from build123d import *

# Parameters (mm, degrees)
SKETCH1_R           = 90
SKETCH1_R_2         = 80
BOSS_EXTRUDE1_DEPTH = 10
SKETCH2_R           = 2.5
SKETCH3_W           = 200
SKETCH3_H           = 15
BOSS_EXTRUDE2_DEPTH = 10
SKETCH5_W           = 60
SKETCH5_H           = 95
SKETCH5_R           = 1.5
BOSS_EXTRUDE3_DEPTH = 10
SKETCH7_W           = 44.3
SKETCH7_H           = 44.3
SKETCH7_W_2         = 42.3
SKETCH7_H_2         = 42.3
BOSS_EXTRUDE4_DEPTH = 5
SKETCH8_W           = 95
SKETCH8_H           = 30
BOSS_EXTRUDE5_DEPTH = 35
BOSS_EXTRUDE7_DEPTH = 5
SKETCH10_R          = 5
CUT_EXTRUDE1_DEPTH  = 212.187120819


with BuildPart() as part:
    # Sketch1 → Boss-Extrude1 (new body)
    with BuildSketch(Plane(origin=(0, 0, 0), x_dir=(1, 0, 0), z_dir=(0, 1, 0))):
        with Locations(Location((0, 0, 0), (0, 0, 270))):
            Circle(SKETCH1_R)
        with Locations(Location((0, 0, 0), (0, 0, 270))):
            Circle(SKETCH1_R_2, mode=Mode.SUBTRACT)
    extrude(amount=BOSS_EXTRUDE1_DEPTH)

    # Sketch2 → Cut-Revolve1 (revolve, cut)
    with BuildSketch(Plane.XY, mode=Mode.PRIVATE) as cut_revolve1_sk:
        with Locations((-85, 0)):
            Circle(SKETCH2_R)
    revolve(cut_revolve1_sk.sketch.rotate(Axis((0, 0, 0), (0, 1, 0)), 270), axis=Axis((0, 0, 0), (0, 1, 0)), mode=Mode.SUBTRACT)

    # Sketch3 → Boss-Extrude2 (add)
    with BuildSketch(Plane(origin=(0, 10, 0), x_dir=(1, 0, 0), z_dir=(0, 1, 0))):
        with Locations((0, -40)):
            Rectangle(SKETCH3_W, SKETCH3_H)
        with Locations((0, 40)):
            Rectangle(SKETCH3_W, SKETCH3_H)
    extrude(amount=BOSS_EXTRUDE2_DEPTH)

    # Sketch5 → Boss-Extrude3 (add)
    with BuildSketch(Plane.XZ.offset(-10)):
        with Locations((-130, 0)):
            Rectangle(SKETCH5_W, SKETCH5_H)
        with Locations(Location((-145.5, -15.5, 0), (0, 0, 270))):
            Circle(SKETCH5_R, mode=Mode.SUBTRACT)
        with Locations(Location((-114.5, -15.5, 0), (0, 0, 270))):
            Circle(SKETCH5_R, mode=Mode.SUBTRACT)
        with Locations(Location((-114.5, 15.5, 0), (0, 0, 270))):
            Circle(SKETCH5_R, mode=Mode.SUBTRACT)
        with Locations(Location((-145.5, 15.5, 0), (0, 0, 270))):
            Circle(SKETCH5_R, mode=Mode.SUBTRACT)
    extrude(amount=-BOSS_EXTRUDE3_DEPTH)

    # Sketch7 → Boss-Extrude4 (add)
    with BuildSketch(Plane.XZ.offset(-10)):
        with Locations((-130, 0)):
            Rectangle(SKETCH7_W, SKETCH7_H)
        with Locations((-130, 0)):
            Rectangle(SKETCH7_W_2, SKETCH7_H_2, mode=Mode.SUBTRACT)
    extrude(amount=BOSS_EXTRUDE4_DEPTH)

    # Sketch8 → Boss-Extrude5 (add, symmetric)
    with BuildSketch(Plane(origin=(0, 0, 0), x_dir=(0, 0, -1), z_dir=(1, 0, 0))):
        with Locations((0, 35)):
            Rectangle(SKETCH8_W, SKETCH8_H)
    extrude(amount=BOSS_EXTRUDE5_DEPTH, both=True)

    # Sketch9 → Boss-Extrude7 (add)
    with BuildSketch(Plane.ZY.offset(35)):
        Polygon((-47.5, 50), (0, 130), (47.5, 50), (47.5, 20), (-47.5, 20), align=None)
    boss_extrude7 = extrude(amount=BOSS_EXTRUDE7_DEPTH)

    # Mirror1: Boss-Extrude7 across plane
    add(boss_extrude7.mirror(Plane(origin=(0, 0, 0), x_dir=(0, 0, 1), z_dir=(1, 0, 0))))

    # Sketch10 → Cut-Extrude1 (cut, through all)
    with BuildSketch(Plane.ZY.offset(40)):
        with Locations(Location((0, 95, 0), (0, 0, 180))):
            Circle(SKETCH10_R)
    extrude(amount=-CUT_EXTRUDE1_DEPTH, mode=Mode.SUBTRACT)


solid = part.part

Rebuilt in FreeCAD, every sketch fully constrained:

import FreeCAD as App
import Part
import Sketcher
from FreeCAD import Vector
Q = App.Units.Quantity

doc = App.newDocument("Part")
body = doc.addObject("PartDesign::Body", "Body")

# Sketch on XZ plane
sketch1 = body.newObject("Sketcher::SketchObject", "Sketch")
sketch1.AttachmentSupport = (doc.getObject("XZ_Plane"), [""])
sketch1.MapMode = "FlatFace"
sketch1.addGeometry(Part.Circle(Vector(0, 0, 0), Vector(0, 0, 1), 90), False)
sketch1.addGeometry(Part.Circle(Vector(0, 0, 0), Vector(0, 0, 1), 80), False)
sketch1.addConstraint(Sketcher.Constraint("Coincident", 0, 3, -1, 1))
sketch1.addConstraint(Sketcher.Constraint("Coincident", 1, 3, -1, 1))
sketch1.addConstraint(Sketcher.Constraint("Diameter", 0, Q("180 mm")))
sketch1.addConstraint(Sketcher.Constraint("Diameter", 1, Q("160 mm")))
pad1 = body.newObject("PartDesign::Pad", "Pad")
pad1.Profile = sketch1
pad1.Length = 10
pad1.Reversed = True

# Sketch on XY plane
sketch2 = body.newObject("Sketcher::SketchObject", "Sketch001")
sketch2.AttachmentSupport = (doc.getObject("XY_Plane"), [""])
sketch2.MapMode = "FlatFace"
sketch2.addGeometry(Part.Circle(Vector(-85, 0, 0), Vector(0, 0, 1), 2.5), False)
sketch2.addConstraint(Sketcher.Constraint("PointOnObject", 0, 3, -1))
sketch2.addConstraint(Sketcher.Constraint("Diameter", 0, Q("5 mm")))
sketch2.addConstraint(Sketcher.Constraint("DistanceX", 0, 3, -1, 1, Q("85 mm")))
groove = body.newObject("PartDesign::Groove", "Groove")
groove.Profile = sketch2
groove.ReferenceAxis = (sketch2, ["V_Axis"])
groove.Angle = 360

# Sketch on XZ plane
sketch3 = body.newObject("Sketcher::SketchObject", "Sketch002")
sketch3.AttachmentSupport = (doc.getObject("XZ_Plane"), [""])
sketch3.MapMode = "FlatFace"
sketch3.AttachmentOffset = App.Placement(Vector(0, 0, -10), App.Rotation())
sketch3.addGeometry(Part.LineSegment(Vector(-100, 32, 0), Vector(-100, 48, 0)), False)
sketch3.addGeometry(Part.LineSegment(Vector(-100, 48, 0), Vector(100, 48, 0)), False)
sketch3.addGeometry(Part.LineSegment(Vector(100, 48, 0), Vector(100, 32, 0)), False)
sketch3.addGeometry(Part.LineSegment(Vector(100, 32, 0), Vector(-100, 32, 0)), False)
sketch3.addGeometry(Part.LineSegment(Vector(-100, -48, 0), Vector(-100, -32, 0)), False)
sketch3.addGeometry(Part.LineSegment(Vector(-100, -32, 0), Vector(100, -32, 0)), False)
sketch3.addGeometry(Part.LineSegment(Vector(100, -32, 0), Vector(100, -48, 0)), False)
sketch3.addGeometry(Part.LineSegment(Vector(100, -48, 0), Vector(-100, -48, 0)), False)
sketch3.addConstraint(Sketcher.Constraint("Coincident", 0, 2, 1, 1))
sketch3.addConstraint(Sketcher.Constraint("Coincident", 1, 2, 2, 1))
sketch3.addConstraint(Sketcher.Constraint("Coincident", 2, 2, 3, 1))
sketch3.addConstraint(Sketcher.Constraint("Coincident", 3, 2, 0, 1))
sketch3.addConstraint(Sketcher.Constraint("Coincident", 4, 2, 5, 1))
sketch3.addConstraint(Sketcher.Constraint("Coincident", 5, 2, 6, 1))
sketch3.addConstraint(Sketcher.Constraint("Coincident", 6, 2, 7, 1))
sketch3.addConstraint(Sketcher.Constraint("Coincident", 7, 2, 4, 1))
sketch3.addConstraint(Sketcher.Constraint("Vertical", 0))
sketch3.addConstraint(Sketcher.Constraint("Horizontal", 1))
sketch3.addConstraint(Sketcher.Constraint("Vertical", 2))
sketch3.addConstraint(Sketcher.Constraint("Horizontal", 3))
sketch3.addConstraint(Sketcher.Constraint("Vertical", 4))
sketch3.addConstraint(Sketcher.Constraint("Horizontal", 5))
sketch3.addConstraint(Sketcher.Constraint("Vertical", 6))
sketch3.addConstraint(Sketcher.Constraint("Horizontal", 7))
sketch3.addConstraint(Sketcher.Constraint("Symmetric", 2, 2, 4, 2, -1, 1))
sketch3.addConstraint(Sketcher.Constraint("Symmetric", 0, 2, 6, 2, -1, 1))
sketch3.addConstraint(Sketcher.Constraint("Vertical", 3, 2, 4, 2))
sketch3.addConstraint(Sketcher.Constraint("DistanceX", 1, 1, 1, 2, Q("200 mm")))
sketch3.addConstraint(Sketcher.Constraint("DistanceY", 0, 1, 0, 2, Q("15 mm")))
sketch3.addConstraint(Sketcher.Constraint("DistanceY", 4, 2, 3, 2, Q("65 mm")))
pad2 = body.newObject("PartDesign::Pad", "Pad001")
pad2.Profile = sketch3
pad2.Length = 10
pad2.Reversed = True

# Sketch on XZ plane
sketch4 = body.newObject("Sketcher::SketchObject", "Sketch003")
sketch4.AttachmentSupport = (doc.getObject("XZ_Plane"), [""])
sketch4.MapMode = "FlatFace"
sketch4.AttachmentOffset = App.Placement(Vector(0, 0, -10), App.Rotation())
sketch4.addGeometry(Part.LineSegment(Vector(-160, 47.5, 0), Vector(-160, -47.5, 0)), False)
sketch4.addGeometry(Part.LineSegment(Vector(-160, -47.5, 0), Vector(-100, -47.5, 0)), False)
sketch4.addGeometry(Part.LineSegment(Vector(-100, -47.5, 0), Vector(-100, 47.5, 0)), False)
sketch4.addGeometry(Part.LineSegment(Vector(-100, 47.5, 0), Vector(-160, 47.5, 0)), False)
sketch4.addGeometry(Part.Circle(Vector(-145.5, -15.5, 0), Vector(0, 0, 1), 1.5), False)
sketch4.addGeometry(Part.Circle(Vector(-114.5, -15.5, 0), Vector(0, 0, 1), 1.5), False)
sketch4.addGeometry(Part.Circle(Vector(-145.5, 15.5, 0), Vector(0, 0, 1), 1.5), False)
sketch4.addGeometry(Part.Circle(Vector(-114.5, 15.5, 0), Vector(0, 0, 1), 1.5), False)
sketch4.addConstraint(Sketcher.Constraint("Coincident", 0, 2, 1, 1))
sketch4.addConstraint(Sketcher.Constraint("Coincident", 1, 2, 2, 1))
sketch4.addConstraint(Sketcher.Constraint("Coincident", 2, 2, 3, 1))
sketch4.addConstraint(Sketcher.Constraint("Coincident", 3, 2, 0, 1))
sketch4.addConstraint(Sketcher.Constraint("Vertical", 0))
sketch4.addConstraint(Sketcher.Constraint("Horizontal", 1))
sketch4.addConstraint(Sketcher.Constraint("Vertical", 2))
sketch4.addConstraint(Sketcher.Constraint("Horizontal", 3))
sketch4.addConstraint(Sketcher.Constraint("Equal", 4, 5))
sketch4.addConstraint(Sketcher.Constraint("Equal", 5, 6))
sketch4.addConstraint(Sketcher.Constraint("Equal", 6, 7))
sketch4.addConstraint(Sketcher.Constraint("Symmetric", 4, 3, 6, 3, -1))
sketch4.addConstraint(Sketcher.Constraint("Symmetric", 5, 3, 7, 3, -1))
sketch4.addConstraint(Sketcher.Constraint("Horizontal", 4, 3, 5, 3))
sketch4.addConstraint(Sketcher.Constraint("Diameter", 4, Q("3 mm")))
sketch4.addConstraint(Sketcher.Constraint("DistanceX", 1, 1, 1, 2, Q("60 mm")))
sketch4.addConstraint(Sketcher.Constraint("DistanceY", 0, 2, 0, 1, Q("95 mm")))
sketch4.addConstraint(Sketcher.Constraint("DistanceX", 0, 2, -1, 1, Q("160 mm")))
sketch4.addConstraint(Sketcher.Constraint("DistanceX", 4, 3, 5, 3, Q("31 mm")))
sketch4.addConstraint(Sketcher.Constraint("DistanceY", 4, 3, 6, 3, Q("31 mm")))
sketch4.addConstraint(Sketcher.Constraint("DistanceY", 0, 2, 4, 3, Q("32 mm")))
sketch4.addConstraint(Sketcher.Constraint("DistanceX", 4, 3, -1, 1, Q("145.5 mm")))
pad3 = body.newObject("PartDesign::Pad", "Pad002")
pad3.Profile = sketch4
pad3.Length = 10
pad3.Reversed = True

# Sketch on XZ plane
sketch5 = body.newObject("Sketcher::SketchObject", "Sketch004")
sketch5.AttachmentSupport = (doc.getObject("XZ_Plane"), [""])
sketch5.MapMode = "FlatFace"
sketch5.AttachmentOffset = App.Placement(Vector(0, 0, -10), App.Rotation())
sketch5.addGeometry(Part.LineSegment(Vector(-152, 22, 0), Vector(-152, -22, 0)), False)
sketch5.addGeometry(Part.LineSegment(Vector(-152, -22, 0), Vector(-108, -22, 0)), False)
sketch5.addGeometry(Part.LineSegment(Vector(-108, -22, 0), Vector(-108, 22, 0)), False)
sketch5.addGeometry(Part.LineSegment(Vector(-108, 22, 0), Vector(-152, 22, 0)), False)
sketch5.addGeometry(Part.LineSegment(Vector(-109, -21, 0), Vector(-151, -21, 0)), False)
sketch5.addGeometry(Part.LineSegment(Vector(-151, -21, 0), Vector(-151, 21, 0)), False)
sketch5.addGeometry(Part.LineSegment(Vector(-151, 21, 0), Vector(-109, 21, 0)), False)
sketch5.addGeometry(Part.LineSegment(Vector(-109, 21, 0), Vector(-109, -21, 0)), False)
sketch5.addConstraint(Sketcher.Constraint("Coincident", 0, 2, 1, 1))
sketch5.addConstraint(Sketcher.Constraint("Coincident", 1, 2, 2, 1))
sketch5.addConstraint(Sketcher.Constraint("Coincident", 2, 2, 3, 1))
sketch5.addConstraint(Sketcher.Constraint("Coincident", 3, 2, 0, 1))
sketch5.addConstraint(Sketcher.Constraint("Coincident", 4, 2, 5, 1))
sketch5.addConstraint(Sketcher.Constraint("Coincident", 5, 2, 6, 1))
sketch5.addConstraint(Sketcher.Constraint("Coincident", 6, 2, 7, 1))
sketch5.addConstraint(Sketcher.Constraint("Coincident", 7, 2, 4, 1))
sketch5.addConstraint(Sketcher.Constraint("Vertical", 0))
sketch5.addConstraint(Sketcher.Constraint("Horizontal", 1))
sketch5.addConstraint(Sketcher.Constraint("Vertical", 2))
sketch5.addConstraint(Sketcher.Constraint("Horizontal", 3))
sketch5.addConstraint(Sketcher.Constraint("Horizontal", 4))
sketch5.addConstraint(Sketcher.Constraint("Vertical", 5))
sketch5.addConstraint(Sketcher.Constraint("Horizontal", 6))
sketch5.addConstraint(Sketcher.Constraint("Vertical", 7))
sketch5.addConstraint(Sketcher.Constraint("Equal", 3, 0))
sketch5.addConstraint(Sketcher.Constraint("Equal", 6, 5))
sketch5.addConstraint(Sketcher.Constraint("DistanceX", 1, 1, 1, 2, Q("44.3 mm")))
sketch5.addConstraint(Sketcher.Constraint("DistanceX", 4, 2, 4, 1, Q("42.3 mm")))
sketch5.addConstraint(Sketcher.Constraint("DistanceX", 0, 2, 4, 2, Q("1 mm")))
sketch5.addConstraint(Sketcher.Constraint("DistanceY", 0, 2, 4, 2, Q("1 mm")))
sketch5.addConstraint(Sketcher.Constraint("DistanceX", 0, 2, -1, 1, Q("152.15 mm")))
sketch5.addConstraint(Sketcher.Constraint("DistanceY", 0, 2, -1, 1, Q("22.15 mm")))
pad4 = body.newObject("PartDesign::Pad", "Pad003")
pad4.Profile = sketch5
pad4.Length = 5

# Sketch on YZ plane
sketch6 = body.newObject("Sketcher::SketchObject", "Sketch005")
sketch6.AttachmentSupport = (doc.getObject("YZ_Plane"), [""])
sketch6.MapMode = "FlatFace"
sketch6.addGeometry(Part.LineSegment(Vector(50, 48, 0), Vector(20, 48, 0)), False)
sketch6.addGeometry(Part.LineSegment(Vector(20, 48, 0), Vector(20, -48, 0)), False)
sketch6.addGeometry(Part.LineSegment(Vector(20, -48, 0), Vector(50, -48, 0)), False)
sketch6.addGeometry(Part.LineSegment(Vector(50, -48, 0), Vector(50, 48, 0)), False)
sketch6.addConstraint(Sketcher.Constraint("Coincident", 0, 2, 1, 1))
sketch6.addConstraint(Sketcher.Constraint("Coincident", 1, 2, 2, 1))
sketch6.addConstraint(Sketcher.Constraint("Coincident", 2, 2, 3, 1))
sketch6.addConstraint(Sketcher.Constraint("Coincident", 3, 2, 0, 1))
sketch6.addConstraint(Sketcher.Constraint("Horizontal", 0))
sketch6.addConstraint(Sketcher.Constraint("Vertical", 1))
sketch6.addConstraint(Sketcher.Constraint("Horizontal", 2))
sketch6.addConstraint(Sketcher.Constraint("Vertical", 3))
sketch6.addConstraint(Sketcher.Constraint("DistanceX", 0, 2, 0, 1, Q("30 mm")))
sketch6.addConstraint(Sketcher.Constraint("DistanceY", 1, 2, 1, 1, Q("95 mm")))
sketch6.addConstraint(Sketcher.Constraint("DistanceX", -1, 1, 0, 2, Q("20 mm")))
sketch6.addConstraint(Sketcher.Constraint("DistanceY", -1, 1, 0, 2, Q("47.5 mm")))
pad5 = body.newObject("PartDesign::Pad", "Pad004")
pad5.Profile = sketch6
pad5.Length = 70
pad5.Midplane = True

# Sketch on YZ plane
sketch7 = body.newObject("Sketcher::SketchObject", "Sketch006")
sketch7.AttachmentSupport = (doc.getObject("YZ_Plane"), [""])
sketch7.MapMode = "FlatFace"
sketch7.AttachmentOffset = App.Placement(Vector(0, 0, -35), App.Rotation())
sketch7.addGeometry(Part.LineSegment(Vector(130, 0, 0), Vector(50, -48, 0)), False)
sketch7.addGeometry(Part.LineSegment(Vector(50, -48, 0), Vector(20, -48, 0)), False)
sketch7.addGeometry(Part.LineSegment(Vector(20, -48, 0), Vector(20, 48, 0)), False)
sketch7.addGeometry(Part.LineSegment(Vector(20, 48, 0), Vector(50, 48, 0)), False)
sketch7.addGeometry(Part.LineSegment(Vector(50, 48, 0), Vector(130, 0, 0)), False)
sketch7.addConstraint(Sketcher.Constraint("Coincident", 0, 2, 1, 1))
sketch7.addConstraint(Sketcher.Constraint("Coincident", 1, 2, 2, 1))
sketch7.addConstraint(Sketcher.Constraint("Coincident", 2, 2, 3, 1))
sketch7.addConstraint(Sketcher.Constraint("Coincident", 3, 2, 4, 1))
sketch7.addConstraint(Sketcher.Constraint("Coincident", 4, 2, 0, 1))
sketch7.addConstraint(Sketcher.Constraint("Horizontal", 1))
sketch7.addConstraint(Sketcher.Constraint("Vertical", 2))
sketch7.addConstraint(Sketcher.Constraint("Horizontal", 3))
sketch7.addConstraint(Sketcher.Constraint("Symmetric", 0, 2, 3, 2, -1))
sketch7.addConstraint(Sketcher.Constraint("PointOnObject", 4, 2, -1))
sketch7.addConstraint(Sketcher.Constraint("DistanceX", 1, 2, 1, 1, Q("30 mm")))
sketch7.addConstraint(Sketcher.Constraint("DistanceY", 2, 1, 2, 2, Q("95 mm")))
sketch7.addConstraint(Sketcher.Constraint("DistanceX", -1, 1, 0, 2, Q("50 mm")))
sketch7.addConstraint(Sketcher.Constraint("DistanceX", -1, 1, 4, 2, Q("130 mm")))
pad6 = body.newObject("PartDesign::Pad", "Pad005")
pad6.Profile = sketch7
pad6.Length = 5
pad6.Reversed = True
doc.recompute()

mirrored = body.newObject("PartDesign::Mirrored", "Mirrored")
mirrored.Originals = [pad6]
mirrored.MirrorPlane = (doc.getObject("YZ_Plane"), [""])
body.Tip = mirrored

# Sketch on YZ plane
sketch8 = body.newObject("Sketcher::SketchObject", "Sketch007")
sketch8.AttachmentSupport = (doc.getObject("YZ_Plane"), [""])
sketch8.MapMode = "FlatFace"
sketch8.AttachmentOffset = App.Placement(Vector(0, 0, -40), App.Rotation())
sketch8.addGeometry(Part.Circle(Vector(95, 0, 0), Vector(0, 0, 1), 5), False)
sketch8.addConstraint(Sketcher.Constraint("PointOnObject", 0, 3, -1))
sketch8.addConstraint(Sketcher.Constraint("Diameter", 0, Q("10 mm")))
sketch8.addConstraint(Sketcher.Constraint("DistanceX", -1, 1, 0, 3, Q("95 mm")))
pocket1 = body.newObject("PartDesign::Pocket", "Pocket")
pocket1.Profile = sketch8
pocket1.Type = "ThroughAll"
pocket1.Reversed = True

doc.recompute()
